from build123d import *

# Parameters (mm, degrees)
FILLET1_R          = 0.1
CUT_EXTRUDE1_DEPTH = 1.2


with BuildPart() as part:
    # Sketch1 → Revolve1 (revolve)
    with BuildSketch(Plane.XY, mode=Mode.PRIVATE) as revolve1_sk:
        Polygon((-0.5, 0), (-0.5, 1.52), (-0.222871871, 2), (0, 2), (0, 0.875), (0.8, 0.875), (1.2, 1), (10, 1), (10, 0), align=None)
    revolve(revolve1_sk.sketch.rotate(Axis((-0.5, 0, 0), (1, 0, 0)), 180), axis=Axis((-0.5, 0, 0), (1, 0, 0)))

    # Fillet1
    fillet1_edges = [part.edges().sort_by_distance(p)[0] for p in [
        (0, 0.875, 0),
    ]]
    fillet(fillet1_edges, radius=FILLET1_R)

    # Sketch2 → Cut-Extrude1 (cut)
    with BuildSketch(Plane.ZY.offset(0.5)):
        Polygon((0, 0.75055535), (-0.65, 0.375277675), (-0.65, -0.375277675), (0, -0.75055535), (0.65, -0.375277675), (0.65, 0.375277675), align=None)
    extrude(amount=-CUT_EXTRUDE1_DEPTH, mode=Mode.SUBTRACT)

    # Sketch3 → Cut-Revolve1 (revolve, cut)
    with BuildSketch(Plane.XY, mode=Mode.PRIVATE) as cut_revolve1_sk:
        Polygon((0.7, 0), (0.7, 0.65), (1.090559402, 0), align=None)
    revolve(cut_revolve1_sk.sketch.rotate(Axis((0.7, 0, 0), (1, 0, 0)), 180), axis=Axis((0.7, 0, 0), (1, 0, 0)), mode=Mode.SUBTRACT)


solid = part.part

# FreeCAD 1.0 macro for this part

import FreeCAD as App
import Part
import Sketcher
Q = App.Units.Quantity


def edges_at(feature, points):
    """Names of the edges that pass closest to the given points."""
    edges = feature.Shape.Edges
    near = lambda p: min(range(len(edges)), key=lambda i: edges[i].distToShape(Part.Vertex(*p))[0])
    return sorted({f"Edge{near(p) + 1}" for p in points})


def add_polygon(sketch, points):
    """Adds a closed chain of lines whose ends are joined by coincident constraints."""
    first, n = sketch.GeometryCount, len(points)
    for a, b in zip(points, points[1:] + points[:1]):
        sketch.addGeometry(Part.LineSegment(App.Vector(*a, 0), App.Vector(*b, 0)), False)
    for i in range(n):
        sketch.addConstraint(Sketcher.Constraint("Coincident", first + i, 2, first + (i + 1) % n, 1))

doc = App.newDocument("Part")
params = doc.addObject("Spreadsheet::Sheet", "Params")
for row, (alias, value) in enumerate([
    ("sketch1_height", "1 mm"),
    ("sketch1_width", "10.5 mm"),
    ("sketch1_width2", "8.8 mm"),
    ("sketch1_width3", "0.8 mm"),
    ("sketch1_height2", "1.52 mm"),
    ("revolution_angle", "360 deg"),
    ("fillet_radius", "0.1 mm"),
    ("pocket1_length", "1.2 mm"),
    ("sketch3_height", "0.65 mm"),
    ("groove_angle", "360 deg"),
], start=1):
    params.set(f"A{row}", alias)
    params.set(f"B{row}", "=" + value)
    params.setAlias(f"B{row}", alias)

body = doc.addObject("PartDesign::Body", "Body")

# Sketch on XY plane
sketch1 = doc.addObject("Sketcher::SketchObject", "Sketch")
body.addObject(sketch1)
sketch1.AttachmentSupport = (doc.XY_Plane, [""])
sketch1.MapMode = "FlatFace"
add_polygon(sketch1, [(-0.5, 1.52), (-0.5, 0), (10, 0), (10, 1), (1.2, 1), (0.8, 0.88), (0, 0.88), (0, 2), (-0.22, 2)])  # lines 0-8
sketch1.addConstraint(Sketcher.Constraint("Vertical", 0))
sketch1.addConstraint(Sketcher.Constraint("Horizontal", 1))
sketch1.addConstraint(Sketcher.Constraint("Vertical", 2))
sketch1.addConstraint(Sketcher.Constraint("Horizontal", 3))
sketch1.addConstraint(Sketcher.Constraint("Horizontal", 5))
sketch1.addConstraint(Sketcher.Constraint("Vertical", 6))
sketch1.addConstraint(Sketcher.Constraint("Horizontal", 7))
sketch1.addConstraint(Sketcher.Constraint("PointOnObject", 0, 2, -1))
sketch1.addConstraint(Sketcher.Constraint("PointOnObject", 5, 2, -2))
sketch1.addConstraint(Sketcher.Constraint("DistanceY", 2, 1, 2, 2, 1.0))
sketch1.addConstraint(Sketcher.Constraint("Angle", 8, Q("-120 deg")))
sketch1.addConstraint(Sketcher.Constraint("DistanceX", 1, 1, 1, 2, 10.5))
sketch1.addConstraint(Sketcher.Constraint("DistanceX", 3, 2, 3, 1, 8.8))
sketch1.addConstraint(Sketcher.Constraint("DistanceX", 5, 2, 5, 1, 0.8))
sketch1.addConstraint(Sketcher.Constraint("DistanceX", -1, 1, 1, 2, 10.0))
sketch1.addConstraint(Sketcher.Constraint("DistanceY", -1, 1, 6, 2, 2.0))
sketch1.addConstraint(Sketcher.Constraint("DistanceY", 0, 2, 0, 1, 1.52))
sketch1.addConstraint(Sketcher.Constraint("DistanceY", 6, 1, 6, 2, 1.125))
sketch1.setExpression("Constraints[18]", "Params.sketch1_height")
sketch1.setExpression("Constraints[20]", "Params.sketch1_width")
sketch1.setExpression("Constraints[21]", "Params.sketch1_width2")
sketch1.setExpression("Constraints[22]", "Params.sketch1_width3")
sketch1.setExpression("Constraints[25]", "Params.sketch1_height2")
revolution = doc.addObject("PartDesign::Revolution", "Revolution")
body.addObject(revolution)
revolution.Profile = sketch1
revolution.ReferenceAxis = (sketch1, ["H_Axis"])
revolution.setExpression("Angle", "Params.revolution_angle")
doc.recompute()

fillet = doc.addObject("PartDesign::Fillet", "Fillet")
body.addObject(fillet)
fillet.Base = (revolution, edges_at(revolution, [(0, 0.875, 0)]))
fillet.setExpression("Radius", "Params.fillet_radius")

# Sketch on YZ plane
sketch2 = doc.addObject("Sketcher::SketchObject", "Sketch001")
body.addObject(sketch2)
sketch2.AttachmentSupport = (doc.YZ_Plane, [""])
sketch2.MapMode = "FlatFace"
sketch2.AttachmentOffset = App.Placement(App.Vector(0, 0, -0.5), App.Rotation())
add_polygon(sketch2, [(0.8, 0), (0.4, -0.7), (-0.4, -0.7), (-0.8, 0), (-0.4, 0.7), (0.4, 0.7)])  # lines 0-5
sketch2.addConstraint(Sketcher.Constraint("Horizontal", 1))
sketch2.addConstraint(Sketcher.Constraint("Horizontal", 4))
sketch2.addConstraint(Sketcher.Constraint("Symmetric", 0, 2, 3, 2, -1, 1))
sketch2.addConstraint(Sketcher.Constraint("Symmetric", 2, 2, 5, 2, -1, 1))
sketch2.addConstraint(Sketcher.Constraint("PointOnObject", 2, 2, -1))
sketch2.addConstraint(Sketcher.Constraint("Parallel", 2, 5))
sketch2.addConstraint(Sketcher.Constraint("Vertical", 1, 2, 3, 2))
sketch2.addConstraint(Sketcher.Constraint("Angle", 0, Q("-120 deg")))
sketch2.addConstraint(Sketcher.Constraint("DistanceY", 1, 2, 3, 2, 1.3))
sketch2.addConstraint(Sketcher.Constraint("DistanceX", 1, 2, 1, 1, 0.750555))
pocket1 = doc.addObject("PartDesign::Pocket", "Pocket")
body.addObject(pocket1)
pocket1.Profile = sketch2
pocket1.setExpression("Length", "Params.pocket1_length")
pocket1.Reversed = True

# Sketch on XY plane
sketch3 = doc.addObject("Sketcher::SketchObject", "Sketch002")
body.addObject(sketch3)
sketch3.AttachmentSupport = (doc.XY_Plane, [""])
sketch3.MapMode = "FlatFace"
add_polygon(sketch3, [(0.7, 0.65), (0.7, 0), (1.09, 0)])  # lines 0-2
sketch3.addConstraint(Sketcher.Constraint("Vertical", 0))
sketch3.addConstraint(Sketcher.Constraint("Horizontal", 1))
sketch3.addConstraint(Sketcher.Constraint("PointOnObject", 0, 2, -1))
sketch3.addConstraint(Sketcher.Constraint("Angle", 2, Q("121 deg")))
sketch3.addConstraint(Sketcher.Constraint("DistanceY", 0, 2, 0, 1, 0.65))
sketch3.addConstraint(Sketcher.Constraint("DistanceX", -1, 1, 0, 2, 0.7))
sketch3.setExpression("Constraints[7]", "Params.sketch3_height")
groove = doc.addObject("PartDesign::Groove", "Groove")
body.addObject(groove)
groove.Profile = sketch3
groove.ReferenceAxis = (sketch3, ["H_Axis"])
groove.setExpression("Angle", "Params.groove_angle")

doc.recompute()
